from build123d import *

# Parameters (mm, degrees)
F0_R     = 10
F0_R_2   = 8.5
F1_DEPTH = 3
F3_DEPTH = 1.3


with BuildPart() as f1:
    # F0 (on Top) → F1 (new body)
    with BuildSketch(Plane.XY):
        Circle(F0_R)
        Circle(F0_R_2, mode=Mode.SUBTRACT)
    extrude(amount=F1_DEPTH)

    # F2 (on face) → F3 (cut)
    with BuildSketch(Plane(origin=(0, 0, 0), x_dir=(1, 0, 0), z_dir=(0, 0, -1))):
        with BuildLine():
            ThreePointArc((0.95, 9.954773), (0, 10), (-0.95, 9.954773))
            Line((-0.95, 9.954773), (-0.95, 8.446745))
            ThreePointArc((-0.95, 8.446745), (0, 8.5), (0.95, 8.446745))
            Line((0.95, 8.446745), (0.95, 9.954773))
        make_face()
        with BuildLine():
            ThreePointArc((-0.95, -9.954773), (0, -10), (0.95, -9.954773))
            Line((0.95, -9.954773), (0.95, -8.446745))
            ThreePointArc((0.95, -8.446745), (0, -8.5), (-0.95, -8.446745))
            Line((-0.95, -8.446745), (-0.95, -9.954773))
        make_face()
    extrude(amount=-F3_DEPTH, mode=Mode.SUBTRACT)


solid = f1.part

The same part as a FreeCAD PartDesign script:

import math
import FreeCAD as App
import Part
import Sketcher

V = App.Vector

doc = App.newDocument("Part")
body = doc.addObject("PartDesign::Body", "Body")

# Sketch on XY plane
sketch1 = body.newObject("Sketcher::SketchObject", "Sketch")
sketch1.AttachmentSupport = (doc.getObject("XY_Plane"), [""])
sketch1.MapMode = "FlatFace"
sketch1.addGeometry([
    Part.Circle(V(0, 0, 0), V(0, 0, 1), 10),
    Part.Circle(V(0, 0, 0), V(0, 0, 1), 8),
], False)
sketch1.addConstraint([
    Sketcher.Constraint("Coincident", 0, 3, -1, 1),
    Sketcher.Constraint("Coincident", 1, 3, -1, 1),
    Sketcher.Constraint("Diameter", 0, 20.0),
    Sketcher.Constraint("Diameter", 1, 17.0),
])
pad1 = body.newObject("PartDesign::Pad", "Pad")
pad1.Profile = sketch1
pad1.Length = 3

# Sketch on XY plane
sketch2 = body.newObject("Sketcher::SketchObject", "Sketch001")
sketch2.AttachmentSupport = (doc.getObject("XY_Plane"), [""])
sketch2.MapMode = "FlatFace"
sketch2.addGeometry([
    Part.ArcOfCircle(Part.Circle(V(0, 0.000061, 0), V(0, 0, 1), 10.000061), math.radians(-95.451287), math.radians(-84.548713)),  # 0
    Part.LineSegment(V(-0.95, -9.954773, 0), V(-0.95, -8.446745, 0)),  # 1
    Part.ArcOfCircle(Part.Circle(V(0, 0.00001, 0), V(0, 0, 1), 8.50001), math.radians(-96.417045), math.radians(-83.582955)),  # 2
    Part.LineSegment(V(0.95, -8.446745, 0), V(0.95, -9.954773, 0)),  # 3
    Part.ArcOfCircle(Part.Circle(V(0, -0.000061, 0), V(0, 0, 1), 10.000061), math.radians(84.548713), math.radians(95.451287)),  # 4
    Part.LineSegment(V(0.95, 9.954773, 0), V(0.95, 8.446745, 0)),  # 5
    Part.ArcOfCircle(Part.Circle(V(0, -0.00001, 0), V(0, 0, 1), 8.50001), math.radians(83.582955), math.radians(96.417045)),  # 6
    Part.LineSegment(V(-0.95, 8.446745, 0), V(-0.95, 9.954773, 0)),  # 7
], False)
sketch2.addConstraint([
    Sketcher.Constraint("Coincident", 0, 1, 1, 1),
    Sketcher.Constraint("Coincident", 1, 2, 2, 1),
    Sketcher.Constraint("Coincident", 2, 2, 3, 1),
    Sketcher.Constraint("Coincident", 3, 2, 0, 2),
    Sketcher.Constraint("Coincident", 4, 1, 5, 1),
    Sketcher.Constraint("Coincident", 5, 2, 6, 1),
    Sketcher.Constraint("Coincident", 6, 2, 7, 1),
    Sketcher.Constraint("Coincident", 7, 2, 4, 2),
    Sketcher.Constraint("Vertical", 1),
    Sketcher.Constraint("Vertical", 3),
    Sketcher.Constraint("Vertical", 5),
    Sketcher.Constraint("Vertical", 7),
    Sketcher.Constraint("Equal", 0, 4),
    Sketcher.Constraint("Equal", 2, 6),
    Sketcher.Constraint("Symmetric", 0, 3, 4, 3, -1, 1),
    Sketcher.Constraint("Symmetric", 2, 3, 6, 3, -1, 1),
    Sketcher.Constraint("Symmetric", 1, 2, 2, 2, -2),
    Sketcher.Constraint("Symmetric", 4, 1, 7, 2, -2),
    Sketcher.Constraint("Vertical", 3, 2, 4, 1),
    Sketcher.Constraint("DistanceX", 1, 2, 2, 2, 1.9),
    Sketcher.Constraint("Radius", 0, 10.000061),
    Sketcher.Constraint("Radius", 2, 8.50001),
    Sketcher.Constraint("DistanceY", 1, 1, 1, 2, 1.508028),
    Sketcher.Constraint("DistanceY", 4, 3, 0, 3, 0.000121),
])
pocket1 = body.newObject("PartDesign::Pocket", "Pocket")
pocket1.Profile = sketch2
pocket1.Length = 1.3
pocket1.Reversed = True

doc.recompute()
